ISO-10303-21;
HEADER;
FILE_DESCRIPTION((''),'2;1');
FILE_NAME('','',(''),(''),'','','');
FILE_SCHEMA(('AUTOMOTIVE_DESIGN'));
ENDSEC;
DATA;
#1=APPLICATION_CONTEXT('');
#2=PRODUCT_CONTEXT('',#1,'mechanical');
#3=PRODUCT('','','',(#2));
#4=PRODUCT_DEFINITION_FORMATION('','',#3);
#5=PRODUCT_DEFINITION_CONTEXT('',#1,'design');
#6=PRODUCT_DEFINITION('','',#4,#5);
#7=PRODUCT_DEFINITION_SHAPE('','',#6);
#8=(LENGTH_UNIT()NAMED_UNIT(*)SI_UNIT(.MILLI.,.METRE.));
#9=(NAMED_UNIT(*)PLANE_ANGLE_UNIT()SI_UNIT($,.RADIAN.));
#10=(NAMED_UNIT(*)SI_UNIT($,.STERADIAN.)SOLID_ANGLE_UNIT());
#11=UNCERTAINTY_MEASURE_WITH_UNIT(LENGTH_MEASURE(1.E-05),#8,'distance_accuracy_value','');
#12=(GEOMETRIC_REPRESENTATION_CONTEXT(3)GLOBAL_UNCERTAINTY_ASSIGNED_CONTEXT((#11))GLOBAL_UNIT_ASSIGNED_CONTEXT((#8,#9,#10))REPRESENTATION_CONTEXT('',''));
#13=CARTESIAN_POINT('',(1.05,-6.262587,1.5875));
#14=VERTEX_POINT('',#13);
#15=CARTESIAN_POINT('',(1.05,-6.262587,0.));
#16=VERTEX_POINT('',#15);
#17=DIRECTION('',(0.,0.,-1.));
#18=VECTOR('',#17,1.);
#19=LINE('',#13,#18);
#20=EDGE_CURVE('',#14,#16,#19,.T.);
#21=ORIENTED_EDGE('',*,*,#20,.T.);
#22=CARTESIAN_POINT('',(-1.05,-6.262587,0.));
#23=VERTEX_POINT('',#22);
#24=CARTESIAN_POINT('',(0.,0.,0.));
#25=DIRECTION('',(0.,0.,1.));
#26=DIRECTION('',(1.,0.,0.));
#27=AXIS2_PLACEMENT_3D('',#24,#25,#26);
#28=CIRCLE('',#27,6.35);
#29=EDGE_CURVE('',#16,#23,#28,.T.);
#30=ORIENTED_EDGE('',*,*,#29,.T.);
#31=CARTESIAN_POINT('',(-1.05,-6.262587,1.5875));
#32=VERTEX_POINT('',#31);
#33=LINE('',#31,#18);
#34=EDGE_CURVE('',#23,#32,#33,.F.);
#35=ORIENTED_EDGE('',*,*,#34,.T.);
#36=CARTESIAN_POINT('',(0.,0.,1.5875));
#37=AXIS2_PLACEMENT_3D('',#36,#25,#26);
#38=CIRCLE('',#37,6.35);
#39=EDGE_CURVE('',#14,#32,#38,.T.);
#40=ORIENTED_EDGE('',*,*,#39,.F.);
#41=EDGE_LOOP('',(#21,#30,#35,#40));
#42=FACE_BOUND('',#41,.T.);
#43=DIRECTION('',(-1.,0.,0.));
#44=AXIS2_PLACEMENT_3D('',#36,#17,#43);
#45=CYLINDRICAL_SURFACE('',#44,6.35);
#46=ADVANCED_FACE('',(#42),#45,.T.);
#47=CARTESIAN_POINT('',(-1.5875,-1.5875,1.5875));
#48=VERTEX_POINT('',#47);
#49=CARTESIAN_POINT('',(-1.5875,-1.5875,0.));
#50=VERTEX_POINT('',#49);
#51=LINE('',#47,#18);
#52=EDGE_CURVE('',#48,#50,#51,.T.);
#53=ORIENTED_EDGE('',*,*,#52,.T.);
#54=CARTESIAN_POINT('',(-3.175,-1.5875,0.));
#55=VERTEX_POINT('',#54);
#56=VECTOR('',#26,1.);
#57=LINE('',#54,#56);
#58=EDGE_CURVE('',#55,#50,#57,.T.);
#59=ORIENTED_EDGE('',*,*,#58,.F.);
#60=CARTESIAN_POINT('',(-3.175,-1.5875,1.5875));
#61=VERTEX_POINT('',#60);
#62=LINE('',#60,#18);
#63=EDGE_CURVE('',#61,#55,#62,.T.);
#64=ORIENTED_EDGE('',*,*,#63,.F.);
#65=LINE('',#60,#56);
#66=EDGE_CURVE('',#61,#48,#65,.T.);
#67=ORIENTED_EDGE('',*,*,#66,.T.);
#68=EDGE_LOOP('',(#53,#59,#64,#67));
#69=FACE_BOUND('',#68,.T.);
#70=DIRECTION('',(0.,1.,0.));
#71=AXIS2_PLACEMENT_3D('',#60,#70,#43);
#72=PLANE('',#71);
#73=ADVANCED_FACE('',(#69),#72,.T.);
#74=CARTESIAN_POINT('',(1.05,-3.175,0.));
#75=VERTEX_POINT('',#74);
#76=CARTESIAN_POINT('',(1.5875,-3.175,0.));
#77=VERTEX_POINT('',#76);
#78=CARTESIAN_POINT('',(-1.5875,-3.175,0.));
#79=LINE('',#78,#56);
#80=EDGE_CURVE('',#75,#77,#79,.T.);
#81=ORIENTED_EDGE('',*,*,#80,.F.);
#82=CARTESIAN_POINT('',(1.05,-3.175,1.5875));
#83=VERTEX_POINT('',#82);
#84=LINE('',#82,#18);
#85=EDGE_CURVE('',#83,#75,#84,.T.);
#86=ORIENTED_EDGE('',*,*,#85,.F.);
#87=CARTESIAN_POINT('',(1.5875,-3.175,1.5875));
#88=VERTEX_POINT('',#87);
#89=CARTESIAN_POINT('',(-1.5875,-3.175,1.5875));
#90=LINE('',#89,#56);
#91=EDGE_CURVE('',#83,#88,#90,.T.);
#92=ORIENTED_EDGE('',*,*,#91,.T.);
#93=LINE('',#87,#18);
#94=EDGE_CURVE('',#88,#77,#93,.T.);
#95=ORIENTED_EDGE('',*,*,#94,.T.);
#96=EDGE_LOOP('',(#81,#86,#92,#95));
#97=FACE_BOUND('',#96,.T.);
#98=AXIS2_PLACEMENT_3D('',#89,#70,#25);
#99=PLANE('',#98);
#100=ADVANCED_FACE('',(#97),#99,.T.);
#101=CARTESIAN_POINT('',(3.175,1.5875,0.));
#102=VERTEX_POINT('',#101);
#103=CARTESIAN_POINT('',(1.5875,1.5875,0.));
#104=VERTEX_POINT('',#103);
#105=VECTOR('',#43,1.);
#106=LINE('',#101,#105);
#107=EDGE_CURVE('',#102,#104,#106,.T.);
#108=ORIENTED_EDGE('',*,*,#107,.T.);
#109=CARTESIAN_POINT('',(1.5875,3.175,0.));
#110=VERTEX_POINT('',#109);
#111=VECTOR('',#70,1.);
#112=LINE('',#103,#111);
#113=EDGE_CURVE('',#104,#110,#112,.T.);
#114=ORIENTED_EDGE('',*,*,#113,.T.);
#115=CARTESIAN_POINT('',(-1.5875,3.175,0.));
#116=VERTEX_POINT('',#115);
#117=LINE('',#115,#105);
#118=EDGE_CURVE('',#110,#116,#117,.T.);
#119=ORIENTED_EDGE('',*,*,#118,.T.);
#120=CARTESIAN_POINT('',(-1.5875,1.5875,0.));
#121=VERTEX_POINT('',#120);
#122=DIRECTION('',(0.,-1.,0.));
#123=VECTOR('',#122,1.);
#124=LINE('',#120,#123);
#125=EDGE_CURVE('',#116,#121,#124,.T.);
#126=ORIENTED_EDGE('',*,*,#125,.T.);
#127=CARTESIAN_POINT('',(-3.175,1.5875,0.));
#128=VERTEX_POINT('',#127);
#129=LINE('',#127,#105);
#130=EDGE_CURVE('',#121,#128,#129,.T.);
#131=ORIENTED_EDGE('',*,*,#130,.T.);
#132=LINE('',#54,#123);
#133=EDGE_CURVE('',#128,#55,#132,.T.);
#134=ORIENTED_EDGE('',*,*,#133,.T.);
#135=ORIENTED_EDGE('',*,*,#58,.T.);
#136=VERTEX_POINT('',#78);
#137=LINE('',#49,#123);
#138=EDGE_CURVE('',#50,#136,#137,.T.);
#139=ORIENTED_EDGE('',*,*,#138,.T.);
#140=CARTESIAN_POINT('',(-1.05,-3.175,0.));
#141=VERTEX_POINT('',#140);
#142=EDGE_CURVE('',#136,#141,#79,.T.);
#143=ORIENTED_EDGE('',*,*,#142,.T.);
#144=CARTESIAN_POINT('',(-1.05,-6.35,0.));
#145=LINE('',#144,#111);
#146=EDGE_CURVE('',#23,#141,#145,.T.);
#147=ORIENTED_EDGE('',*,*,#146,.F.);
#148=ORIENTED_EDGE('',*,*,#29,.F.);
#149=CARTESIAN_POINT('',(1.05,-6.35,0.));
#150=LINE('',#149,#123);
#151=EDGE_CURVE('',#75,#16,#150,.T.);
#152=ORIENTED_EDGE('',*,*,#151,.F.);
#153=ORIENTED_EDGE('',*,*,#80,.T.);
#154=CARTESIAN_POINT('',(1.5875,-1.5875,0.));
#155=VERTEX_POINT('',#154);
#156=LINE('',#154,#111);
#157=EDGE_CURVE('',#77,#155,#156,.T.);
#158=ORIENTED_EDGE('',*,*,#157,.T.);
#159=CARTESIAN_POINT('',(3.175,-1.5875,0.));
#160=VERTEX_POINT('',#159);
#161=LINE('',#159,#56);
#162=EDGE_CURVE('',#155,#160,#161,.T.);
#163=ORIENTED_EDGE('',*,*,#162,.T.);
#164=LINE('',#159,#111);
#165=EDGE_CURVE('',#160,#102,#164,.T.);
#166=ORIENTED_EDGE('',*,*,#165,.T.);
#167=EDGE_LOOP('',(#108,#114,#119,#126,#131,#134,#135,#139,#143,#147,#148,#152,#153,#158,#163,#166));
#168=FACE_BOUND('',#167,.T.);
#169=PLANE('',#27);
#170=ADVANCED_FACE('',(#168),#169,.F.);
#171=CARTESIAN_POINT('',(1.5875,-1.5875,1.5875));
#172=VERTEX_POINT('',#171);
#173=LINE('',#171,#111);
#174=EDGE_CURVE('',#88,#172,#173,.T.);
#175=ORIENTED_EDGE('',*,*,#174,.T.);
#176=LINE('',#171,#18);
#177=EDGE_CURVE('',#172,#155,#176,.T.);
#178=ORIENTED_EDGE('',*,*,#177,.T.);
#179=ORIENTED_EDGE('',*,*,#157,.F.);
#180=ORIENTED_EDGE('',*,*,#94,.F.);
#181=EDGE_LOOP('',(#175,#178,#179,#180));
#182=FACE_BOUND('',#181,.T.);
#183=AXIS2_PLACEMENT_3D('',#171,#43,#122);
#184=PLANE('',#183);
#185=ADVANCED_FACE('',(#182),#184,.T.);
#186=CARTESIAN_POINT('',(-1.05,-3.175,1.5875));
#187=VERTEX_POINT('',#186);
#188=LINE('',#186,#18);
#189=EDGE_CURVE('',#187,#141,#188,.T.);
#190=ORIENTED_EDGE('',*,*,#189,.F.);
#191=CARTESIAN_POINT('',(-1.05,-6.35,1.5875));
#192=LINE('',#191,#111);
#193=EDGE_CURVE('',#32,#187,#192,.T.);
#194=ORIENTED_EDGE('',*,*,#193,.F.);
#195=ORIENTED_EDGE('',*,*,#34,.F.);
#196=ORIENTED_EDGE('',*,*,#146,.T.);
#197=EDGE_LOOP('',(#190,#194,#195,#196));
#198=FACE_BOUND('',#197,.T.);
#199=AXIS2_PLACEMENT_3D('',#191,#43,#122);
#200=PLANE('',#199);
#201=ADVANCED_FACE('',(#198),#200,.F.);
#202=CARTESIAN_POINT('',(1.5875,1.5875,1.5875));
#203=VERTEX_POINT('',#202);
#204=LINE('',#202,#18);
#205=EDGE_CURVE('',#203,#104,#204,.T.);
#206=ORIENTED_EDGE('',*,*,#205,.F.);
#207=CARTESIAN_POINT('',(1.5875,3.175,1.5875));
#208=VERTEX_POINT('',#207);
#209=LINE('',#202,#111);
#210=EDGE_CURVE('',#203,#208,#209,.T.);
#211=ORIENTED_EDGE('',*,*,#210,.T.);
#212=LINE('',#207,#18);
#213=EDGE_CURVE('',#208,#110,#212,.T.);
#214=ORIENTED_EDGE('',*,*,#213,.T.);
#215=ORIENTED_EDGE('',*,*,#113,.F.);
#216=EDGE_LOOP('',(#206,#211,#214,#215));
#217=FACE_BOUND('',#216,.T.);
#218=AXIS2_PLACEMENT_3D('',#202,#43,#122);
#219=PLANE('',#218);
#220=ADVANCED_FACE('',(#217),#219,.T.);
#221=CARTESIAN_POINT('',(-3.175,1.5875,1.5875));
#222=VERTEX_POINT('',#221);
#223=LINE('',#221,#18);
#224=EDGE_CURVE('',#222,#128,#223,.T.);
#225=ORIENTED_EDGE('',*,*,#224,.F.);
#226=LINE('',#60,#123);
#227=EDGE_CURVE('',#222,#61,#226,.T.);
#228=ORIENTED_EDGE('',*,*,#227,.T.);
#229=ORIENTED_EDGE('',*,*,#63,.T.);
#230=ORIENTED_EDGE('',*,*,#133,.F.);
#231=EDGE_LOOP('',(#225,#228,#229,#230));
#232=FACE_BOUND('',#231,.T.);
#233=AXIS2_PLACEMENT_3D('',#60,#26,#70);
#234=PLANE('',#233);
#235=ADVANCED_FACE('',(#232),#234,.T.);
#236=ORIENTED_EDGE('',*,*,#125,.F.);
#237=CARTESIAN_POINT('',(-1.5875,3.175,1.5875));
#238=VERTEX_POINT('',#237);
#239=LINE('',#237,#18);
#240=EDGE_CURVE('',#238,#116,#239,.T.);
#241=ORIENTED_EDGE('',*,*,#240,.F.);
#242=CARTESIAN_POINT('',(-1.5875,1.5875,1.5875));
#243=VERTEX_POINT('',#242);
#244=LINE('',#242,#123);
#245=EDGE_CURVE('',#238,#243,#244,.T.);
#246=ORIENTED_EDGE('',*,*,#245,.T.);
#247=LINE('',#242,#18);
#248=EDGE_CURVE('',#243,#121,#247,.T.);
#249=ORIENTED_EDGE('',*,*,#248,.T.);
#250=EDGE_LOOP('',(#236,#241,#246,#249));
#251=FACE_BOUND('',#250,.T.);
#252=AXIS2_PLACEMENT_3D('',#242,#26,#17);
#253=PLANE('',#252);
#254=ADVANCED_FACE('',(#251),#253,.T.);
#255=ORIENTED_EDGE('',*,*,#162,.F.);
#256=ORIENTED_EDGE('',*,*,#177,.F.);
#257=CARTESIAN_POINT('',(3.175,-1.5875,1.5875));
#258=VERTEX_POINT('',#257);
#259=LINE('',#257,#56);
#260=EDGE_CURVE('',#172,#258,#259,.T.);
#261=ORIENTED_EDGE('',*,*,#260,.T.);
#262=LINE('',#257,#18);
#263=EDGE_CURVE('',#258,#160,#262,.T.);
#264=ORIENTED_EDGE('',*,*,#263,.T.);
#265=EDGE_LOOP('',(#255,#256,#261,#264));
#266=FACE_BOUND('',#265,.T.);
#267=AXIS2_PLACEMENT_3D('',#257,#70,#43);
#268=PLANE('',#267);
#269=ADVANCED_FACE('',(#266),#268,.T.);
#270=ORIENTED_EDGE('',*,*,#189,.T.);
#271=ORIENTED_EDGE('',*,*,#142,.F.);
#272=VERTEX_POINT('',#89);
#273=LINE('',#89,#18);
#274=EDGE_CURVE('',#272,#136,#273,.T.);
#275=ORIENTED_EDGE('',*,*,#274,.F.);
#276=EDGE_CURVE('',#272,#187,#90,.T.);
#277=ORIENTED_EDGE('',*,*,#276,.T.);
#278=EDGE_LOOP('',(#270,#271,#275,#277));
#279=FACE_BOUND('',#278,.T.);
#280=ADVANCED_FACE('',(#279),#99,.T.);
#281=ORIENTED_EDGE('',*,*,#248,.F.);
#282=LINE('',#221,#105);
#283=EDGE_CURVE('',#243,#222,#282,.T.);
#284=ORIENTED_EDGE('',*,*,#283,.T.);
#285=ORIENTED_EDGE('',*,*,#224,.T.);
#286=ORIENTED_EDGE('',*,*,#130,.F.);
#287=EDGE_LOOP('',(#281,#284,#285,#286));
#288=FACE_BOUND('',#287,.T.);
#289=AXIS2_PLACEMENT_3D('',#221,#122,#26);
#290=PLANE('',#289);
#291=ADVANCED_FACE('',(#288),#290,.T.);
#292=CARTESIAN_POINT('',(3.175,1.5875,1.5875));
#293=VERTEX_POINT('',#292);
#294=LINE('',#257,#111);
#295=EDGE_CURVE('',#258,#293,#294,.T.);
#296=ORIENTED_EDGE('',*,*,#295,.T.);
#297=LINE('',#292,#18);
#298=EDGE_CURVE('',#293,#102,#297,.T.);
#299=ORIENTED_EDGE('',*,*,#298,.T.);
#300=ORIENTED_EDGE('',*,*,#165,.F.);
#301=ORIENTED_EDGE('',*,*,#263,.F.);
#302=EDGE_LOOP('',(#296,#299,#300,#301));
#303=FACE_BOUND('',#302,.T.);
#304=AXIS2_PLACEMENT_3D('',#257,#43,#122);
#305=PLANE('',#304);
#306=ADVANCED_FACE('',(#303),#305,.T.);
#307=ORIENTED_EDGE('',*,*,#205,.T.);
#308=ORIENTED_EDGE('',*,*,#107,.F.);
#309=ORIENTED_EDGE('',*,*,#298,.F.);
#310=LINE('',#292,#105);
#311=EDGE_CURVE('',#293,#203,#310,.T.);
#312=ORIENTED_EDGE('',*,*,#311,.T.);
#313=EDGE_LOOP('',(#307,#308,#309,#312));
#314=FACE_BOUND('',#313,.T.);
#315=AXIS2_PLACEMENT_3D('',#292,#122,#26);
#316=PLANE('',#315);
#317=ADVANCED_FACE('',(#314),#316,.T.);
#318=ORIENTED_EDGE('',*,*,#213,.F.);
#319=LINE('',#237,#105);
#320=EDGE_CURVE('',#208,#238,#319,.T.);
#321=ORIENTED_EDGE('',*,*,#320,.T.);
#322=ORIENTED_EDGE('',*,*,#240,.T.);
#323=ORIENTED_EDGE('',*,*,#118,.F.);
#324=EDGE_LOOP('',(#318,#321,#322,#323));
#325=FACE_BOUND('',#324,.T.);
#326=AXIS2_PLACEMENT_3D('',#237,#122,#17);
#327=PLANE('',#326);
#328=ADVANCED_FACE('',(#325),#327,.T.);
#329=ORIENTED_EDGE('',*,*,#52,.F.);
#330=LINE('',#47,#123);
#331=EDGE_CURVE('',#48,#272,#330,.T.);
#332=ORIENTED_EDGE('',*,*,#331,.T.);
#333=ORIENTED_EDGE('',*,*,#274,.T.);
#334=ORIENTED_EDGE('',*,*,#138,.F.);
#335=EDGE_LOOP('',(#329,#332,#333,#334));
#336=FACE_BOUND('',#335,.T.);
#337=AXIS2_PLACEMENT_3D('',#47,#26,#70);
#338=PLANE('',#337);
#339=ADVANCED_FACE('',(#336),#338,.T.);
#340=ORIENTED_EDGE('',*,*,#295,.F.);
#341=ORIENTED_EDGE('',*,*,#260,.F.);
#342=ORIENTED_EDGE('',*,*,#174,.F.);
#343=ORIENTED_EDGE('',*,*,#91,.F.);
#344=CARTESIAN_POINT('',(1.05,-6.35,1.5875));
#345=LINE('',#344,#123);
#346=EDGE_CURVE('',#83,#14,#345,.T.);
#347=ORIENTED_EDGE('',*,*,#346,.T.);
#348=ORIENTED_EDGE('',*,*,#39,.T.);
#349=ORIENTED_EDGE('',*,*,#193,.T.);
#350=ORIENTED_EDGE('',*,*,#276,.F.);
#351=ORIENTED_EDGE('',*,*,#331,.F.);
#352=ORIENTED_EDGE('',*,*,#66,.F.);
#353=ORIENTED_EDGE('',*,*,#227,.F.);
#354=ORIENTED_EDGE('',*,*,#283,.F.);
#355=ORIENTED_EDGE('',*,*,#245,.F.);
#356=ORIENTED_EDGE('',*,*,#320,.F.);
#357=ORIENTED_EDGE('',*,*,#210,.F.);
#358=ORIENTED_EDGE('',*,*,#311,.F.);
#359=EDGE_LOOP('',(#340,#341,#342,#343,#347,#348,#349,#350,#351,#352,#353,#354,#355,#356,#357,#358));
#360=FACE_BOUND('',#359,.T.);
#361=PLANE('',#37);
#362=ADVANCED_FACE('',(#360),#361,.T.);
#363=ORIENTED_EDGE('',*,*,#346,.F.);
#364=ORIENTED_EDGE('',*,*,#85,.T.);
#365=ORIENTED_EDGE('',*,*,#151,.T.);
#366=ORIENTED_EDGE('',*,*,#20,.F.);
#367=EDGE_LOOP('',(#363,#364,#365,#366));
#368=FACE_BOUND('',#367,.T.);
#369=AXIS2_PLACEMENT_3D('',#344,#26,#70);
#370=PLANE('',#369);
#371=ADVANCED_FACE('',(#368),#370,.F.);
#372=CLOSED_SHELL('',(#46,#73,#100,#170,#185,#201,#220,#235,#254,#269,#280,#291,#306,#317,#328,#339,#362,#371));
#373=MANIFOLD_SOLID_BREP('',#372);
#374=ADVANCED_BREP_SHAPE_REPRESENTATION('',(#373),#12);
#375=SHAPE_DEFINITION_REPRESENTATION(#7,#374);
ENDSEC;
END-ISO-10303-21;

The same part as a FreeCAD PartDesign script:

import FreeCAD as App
import Part
import Sketcher
from FreeCAD import Vector
Q = App.Units.Quantity


def add_polygon(sketch, points):
    """Adds a closed chain of lines whose ends are joined by coincident constraints."""
    first, n = sketch.GeometryCount, len(points)
    for a, b in zip(points, points[1:] + points[:1]):
        sketch.addGeometry(Part.LineSegment(App.Vector(*a, 0), App.Vector(*b, 0)), False)
    for i in range(n):
        sketch.addConstraint(Sketcher.Constraint("Coincident", first + i, 2, first + (i + 1) % n, 1))

doc = App.newDocument("Part")
body = doc.addObject("PartDesign::Body", "Body")

sketch1 = body.newObject("Sketcher::SketchObject", "Sketch")
sketch1.AttachmentSupport = (doc.getObject("XY_Plane"), [""])
sketch1.MapMode = "FlatFace"
sketch1.addGeometry(Part.Circle(Vector(0, 0, 0), Vector(0, 0, 1), 6.3), False)
add_polygon(sketch1, [(-1.6, -1.6), (-3.2, -1.6), (-3.2, 1.6), (-1.6, 1.6), (-1.6, 3.2), (1.6, 3.2), (1.6, 1.6), (3.2, 1.6), (3.2, -1.6), (1.6, -1.6), (1.6, -3.2), (-1.6, -3.2)])
sketch1.addConstraint([
    Sketcher.Constraint("Horizontal", 1),
    Sketcher.Constraint("Vertical", 2),
    Sketcher.Constraint("Horizontal", 3),
    Sketcher.Constraint("Vertical", 4),
    Sketcher.Constraint("Horizontal", 5),
    Sketcher.Constraint("Vertical", 6),
    Sketcher.Constraint("Horizontal", 7),
    Sketcher.Constraint("Vertical", 8),
    Sketcher.Constraint("Horizontal", 9),
    Sketcher.Constraint("Vertical", 10),
    Sketcher.Constraint("Horizontal", 11),
    Sketcher.Constraint("Vertical", 12),
    Sketcher.Constraint("Coincident", 0, 3, -1, 1),
    Sketcher.Constraint("Symmetric", 1, 2, 7, 2, -1, 1),
    Sketcher.Constraint("Symmetric", 3, 2, 9, 2, -1, 1),
    Sketcher.Constraint("Symmetric", 5, 2, 11, 2, -1, 1),
    Sketcher.Constraint("Symmetric", 3, 2, 6, 2, -2),
    Sketcher.Constraint("Equal", 11, 2),
    Sketcher.Constraint("Equal", 9, 4),
    Sketcher.Constraint("Diameter", 0, Q("0.5 in")),
    Sketcher.Constraint("DistanceX", 1, 2, 1, 1, Q("0.0625 in")),
    Sketcher.Constraint("DistanceX", 5, 1, 5, 2, Q("0.125 in")),
])
pad1 = body.newObject("PartDesign::Pad", "Pad")
pad1.Profile = sketch1
pad1.Length = Q("0.0625 in")

sketch2 = body.newObject("Sketcher::SketchObject", "Sketch001")
sketch2.AttachmentSupport = (doc.getObject("XY_Plane"), [""])
sketch2.MapMode = "FlatFace"
add_polygon(sketch2, [(1.1, -3.2), (1.1, -6.3), (-1.1, -6.3), (-1.1, -3.2)])
sketch2.addConstraint([
    Sketcher.Constraint("Vertical", 0),
    Sketcher.Constraint("Horizontal", 1),
    Sketcher.Constraint("Vertical", 2),
    Sketcher.Constraint("Horizontal", 3),
    Sketcher.Constraint("DistanceY", 0, 2, 0, 1, Q("0.125 in")),
    Sketcher.Constraint("DistanceY", 0, 2, -1, 1, Q("0.25 in")),
    Sketcher.Constraint("DistanceX", 1, 2, 1, 1, 2.1),
    Sketcher.Constraint("DistanceX", -1, 1, 0, 2, 1.05),
])
pocket1 = body.newObject("PartDesign::Pocket", "Pocket")
pocket1.Profile = sketch2
pocket1.Type = "ThroughAll"
pocket1.Reversed = True

doc.recompute()
